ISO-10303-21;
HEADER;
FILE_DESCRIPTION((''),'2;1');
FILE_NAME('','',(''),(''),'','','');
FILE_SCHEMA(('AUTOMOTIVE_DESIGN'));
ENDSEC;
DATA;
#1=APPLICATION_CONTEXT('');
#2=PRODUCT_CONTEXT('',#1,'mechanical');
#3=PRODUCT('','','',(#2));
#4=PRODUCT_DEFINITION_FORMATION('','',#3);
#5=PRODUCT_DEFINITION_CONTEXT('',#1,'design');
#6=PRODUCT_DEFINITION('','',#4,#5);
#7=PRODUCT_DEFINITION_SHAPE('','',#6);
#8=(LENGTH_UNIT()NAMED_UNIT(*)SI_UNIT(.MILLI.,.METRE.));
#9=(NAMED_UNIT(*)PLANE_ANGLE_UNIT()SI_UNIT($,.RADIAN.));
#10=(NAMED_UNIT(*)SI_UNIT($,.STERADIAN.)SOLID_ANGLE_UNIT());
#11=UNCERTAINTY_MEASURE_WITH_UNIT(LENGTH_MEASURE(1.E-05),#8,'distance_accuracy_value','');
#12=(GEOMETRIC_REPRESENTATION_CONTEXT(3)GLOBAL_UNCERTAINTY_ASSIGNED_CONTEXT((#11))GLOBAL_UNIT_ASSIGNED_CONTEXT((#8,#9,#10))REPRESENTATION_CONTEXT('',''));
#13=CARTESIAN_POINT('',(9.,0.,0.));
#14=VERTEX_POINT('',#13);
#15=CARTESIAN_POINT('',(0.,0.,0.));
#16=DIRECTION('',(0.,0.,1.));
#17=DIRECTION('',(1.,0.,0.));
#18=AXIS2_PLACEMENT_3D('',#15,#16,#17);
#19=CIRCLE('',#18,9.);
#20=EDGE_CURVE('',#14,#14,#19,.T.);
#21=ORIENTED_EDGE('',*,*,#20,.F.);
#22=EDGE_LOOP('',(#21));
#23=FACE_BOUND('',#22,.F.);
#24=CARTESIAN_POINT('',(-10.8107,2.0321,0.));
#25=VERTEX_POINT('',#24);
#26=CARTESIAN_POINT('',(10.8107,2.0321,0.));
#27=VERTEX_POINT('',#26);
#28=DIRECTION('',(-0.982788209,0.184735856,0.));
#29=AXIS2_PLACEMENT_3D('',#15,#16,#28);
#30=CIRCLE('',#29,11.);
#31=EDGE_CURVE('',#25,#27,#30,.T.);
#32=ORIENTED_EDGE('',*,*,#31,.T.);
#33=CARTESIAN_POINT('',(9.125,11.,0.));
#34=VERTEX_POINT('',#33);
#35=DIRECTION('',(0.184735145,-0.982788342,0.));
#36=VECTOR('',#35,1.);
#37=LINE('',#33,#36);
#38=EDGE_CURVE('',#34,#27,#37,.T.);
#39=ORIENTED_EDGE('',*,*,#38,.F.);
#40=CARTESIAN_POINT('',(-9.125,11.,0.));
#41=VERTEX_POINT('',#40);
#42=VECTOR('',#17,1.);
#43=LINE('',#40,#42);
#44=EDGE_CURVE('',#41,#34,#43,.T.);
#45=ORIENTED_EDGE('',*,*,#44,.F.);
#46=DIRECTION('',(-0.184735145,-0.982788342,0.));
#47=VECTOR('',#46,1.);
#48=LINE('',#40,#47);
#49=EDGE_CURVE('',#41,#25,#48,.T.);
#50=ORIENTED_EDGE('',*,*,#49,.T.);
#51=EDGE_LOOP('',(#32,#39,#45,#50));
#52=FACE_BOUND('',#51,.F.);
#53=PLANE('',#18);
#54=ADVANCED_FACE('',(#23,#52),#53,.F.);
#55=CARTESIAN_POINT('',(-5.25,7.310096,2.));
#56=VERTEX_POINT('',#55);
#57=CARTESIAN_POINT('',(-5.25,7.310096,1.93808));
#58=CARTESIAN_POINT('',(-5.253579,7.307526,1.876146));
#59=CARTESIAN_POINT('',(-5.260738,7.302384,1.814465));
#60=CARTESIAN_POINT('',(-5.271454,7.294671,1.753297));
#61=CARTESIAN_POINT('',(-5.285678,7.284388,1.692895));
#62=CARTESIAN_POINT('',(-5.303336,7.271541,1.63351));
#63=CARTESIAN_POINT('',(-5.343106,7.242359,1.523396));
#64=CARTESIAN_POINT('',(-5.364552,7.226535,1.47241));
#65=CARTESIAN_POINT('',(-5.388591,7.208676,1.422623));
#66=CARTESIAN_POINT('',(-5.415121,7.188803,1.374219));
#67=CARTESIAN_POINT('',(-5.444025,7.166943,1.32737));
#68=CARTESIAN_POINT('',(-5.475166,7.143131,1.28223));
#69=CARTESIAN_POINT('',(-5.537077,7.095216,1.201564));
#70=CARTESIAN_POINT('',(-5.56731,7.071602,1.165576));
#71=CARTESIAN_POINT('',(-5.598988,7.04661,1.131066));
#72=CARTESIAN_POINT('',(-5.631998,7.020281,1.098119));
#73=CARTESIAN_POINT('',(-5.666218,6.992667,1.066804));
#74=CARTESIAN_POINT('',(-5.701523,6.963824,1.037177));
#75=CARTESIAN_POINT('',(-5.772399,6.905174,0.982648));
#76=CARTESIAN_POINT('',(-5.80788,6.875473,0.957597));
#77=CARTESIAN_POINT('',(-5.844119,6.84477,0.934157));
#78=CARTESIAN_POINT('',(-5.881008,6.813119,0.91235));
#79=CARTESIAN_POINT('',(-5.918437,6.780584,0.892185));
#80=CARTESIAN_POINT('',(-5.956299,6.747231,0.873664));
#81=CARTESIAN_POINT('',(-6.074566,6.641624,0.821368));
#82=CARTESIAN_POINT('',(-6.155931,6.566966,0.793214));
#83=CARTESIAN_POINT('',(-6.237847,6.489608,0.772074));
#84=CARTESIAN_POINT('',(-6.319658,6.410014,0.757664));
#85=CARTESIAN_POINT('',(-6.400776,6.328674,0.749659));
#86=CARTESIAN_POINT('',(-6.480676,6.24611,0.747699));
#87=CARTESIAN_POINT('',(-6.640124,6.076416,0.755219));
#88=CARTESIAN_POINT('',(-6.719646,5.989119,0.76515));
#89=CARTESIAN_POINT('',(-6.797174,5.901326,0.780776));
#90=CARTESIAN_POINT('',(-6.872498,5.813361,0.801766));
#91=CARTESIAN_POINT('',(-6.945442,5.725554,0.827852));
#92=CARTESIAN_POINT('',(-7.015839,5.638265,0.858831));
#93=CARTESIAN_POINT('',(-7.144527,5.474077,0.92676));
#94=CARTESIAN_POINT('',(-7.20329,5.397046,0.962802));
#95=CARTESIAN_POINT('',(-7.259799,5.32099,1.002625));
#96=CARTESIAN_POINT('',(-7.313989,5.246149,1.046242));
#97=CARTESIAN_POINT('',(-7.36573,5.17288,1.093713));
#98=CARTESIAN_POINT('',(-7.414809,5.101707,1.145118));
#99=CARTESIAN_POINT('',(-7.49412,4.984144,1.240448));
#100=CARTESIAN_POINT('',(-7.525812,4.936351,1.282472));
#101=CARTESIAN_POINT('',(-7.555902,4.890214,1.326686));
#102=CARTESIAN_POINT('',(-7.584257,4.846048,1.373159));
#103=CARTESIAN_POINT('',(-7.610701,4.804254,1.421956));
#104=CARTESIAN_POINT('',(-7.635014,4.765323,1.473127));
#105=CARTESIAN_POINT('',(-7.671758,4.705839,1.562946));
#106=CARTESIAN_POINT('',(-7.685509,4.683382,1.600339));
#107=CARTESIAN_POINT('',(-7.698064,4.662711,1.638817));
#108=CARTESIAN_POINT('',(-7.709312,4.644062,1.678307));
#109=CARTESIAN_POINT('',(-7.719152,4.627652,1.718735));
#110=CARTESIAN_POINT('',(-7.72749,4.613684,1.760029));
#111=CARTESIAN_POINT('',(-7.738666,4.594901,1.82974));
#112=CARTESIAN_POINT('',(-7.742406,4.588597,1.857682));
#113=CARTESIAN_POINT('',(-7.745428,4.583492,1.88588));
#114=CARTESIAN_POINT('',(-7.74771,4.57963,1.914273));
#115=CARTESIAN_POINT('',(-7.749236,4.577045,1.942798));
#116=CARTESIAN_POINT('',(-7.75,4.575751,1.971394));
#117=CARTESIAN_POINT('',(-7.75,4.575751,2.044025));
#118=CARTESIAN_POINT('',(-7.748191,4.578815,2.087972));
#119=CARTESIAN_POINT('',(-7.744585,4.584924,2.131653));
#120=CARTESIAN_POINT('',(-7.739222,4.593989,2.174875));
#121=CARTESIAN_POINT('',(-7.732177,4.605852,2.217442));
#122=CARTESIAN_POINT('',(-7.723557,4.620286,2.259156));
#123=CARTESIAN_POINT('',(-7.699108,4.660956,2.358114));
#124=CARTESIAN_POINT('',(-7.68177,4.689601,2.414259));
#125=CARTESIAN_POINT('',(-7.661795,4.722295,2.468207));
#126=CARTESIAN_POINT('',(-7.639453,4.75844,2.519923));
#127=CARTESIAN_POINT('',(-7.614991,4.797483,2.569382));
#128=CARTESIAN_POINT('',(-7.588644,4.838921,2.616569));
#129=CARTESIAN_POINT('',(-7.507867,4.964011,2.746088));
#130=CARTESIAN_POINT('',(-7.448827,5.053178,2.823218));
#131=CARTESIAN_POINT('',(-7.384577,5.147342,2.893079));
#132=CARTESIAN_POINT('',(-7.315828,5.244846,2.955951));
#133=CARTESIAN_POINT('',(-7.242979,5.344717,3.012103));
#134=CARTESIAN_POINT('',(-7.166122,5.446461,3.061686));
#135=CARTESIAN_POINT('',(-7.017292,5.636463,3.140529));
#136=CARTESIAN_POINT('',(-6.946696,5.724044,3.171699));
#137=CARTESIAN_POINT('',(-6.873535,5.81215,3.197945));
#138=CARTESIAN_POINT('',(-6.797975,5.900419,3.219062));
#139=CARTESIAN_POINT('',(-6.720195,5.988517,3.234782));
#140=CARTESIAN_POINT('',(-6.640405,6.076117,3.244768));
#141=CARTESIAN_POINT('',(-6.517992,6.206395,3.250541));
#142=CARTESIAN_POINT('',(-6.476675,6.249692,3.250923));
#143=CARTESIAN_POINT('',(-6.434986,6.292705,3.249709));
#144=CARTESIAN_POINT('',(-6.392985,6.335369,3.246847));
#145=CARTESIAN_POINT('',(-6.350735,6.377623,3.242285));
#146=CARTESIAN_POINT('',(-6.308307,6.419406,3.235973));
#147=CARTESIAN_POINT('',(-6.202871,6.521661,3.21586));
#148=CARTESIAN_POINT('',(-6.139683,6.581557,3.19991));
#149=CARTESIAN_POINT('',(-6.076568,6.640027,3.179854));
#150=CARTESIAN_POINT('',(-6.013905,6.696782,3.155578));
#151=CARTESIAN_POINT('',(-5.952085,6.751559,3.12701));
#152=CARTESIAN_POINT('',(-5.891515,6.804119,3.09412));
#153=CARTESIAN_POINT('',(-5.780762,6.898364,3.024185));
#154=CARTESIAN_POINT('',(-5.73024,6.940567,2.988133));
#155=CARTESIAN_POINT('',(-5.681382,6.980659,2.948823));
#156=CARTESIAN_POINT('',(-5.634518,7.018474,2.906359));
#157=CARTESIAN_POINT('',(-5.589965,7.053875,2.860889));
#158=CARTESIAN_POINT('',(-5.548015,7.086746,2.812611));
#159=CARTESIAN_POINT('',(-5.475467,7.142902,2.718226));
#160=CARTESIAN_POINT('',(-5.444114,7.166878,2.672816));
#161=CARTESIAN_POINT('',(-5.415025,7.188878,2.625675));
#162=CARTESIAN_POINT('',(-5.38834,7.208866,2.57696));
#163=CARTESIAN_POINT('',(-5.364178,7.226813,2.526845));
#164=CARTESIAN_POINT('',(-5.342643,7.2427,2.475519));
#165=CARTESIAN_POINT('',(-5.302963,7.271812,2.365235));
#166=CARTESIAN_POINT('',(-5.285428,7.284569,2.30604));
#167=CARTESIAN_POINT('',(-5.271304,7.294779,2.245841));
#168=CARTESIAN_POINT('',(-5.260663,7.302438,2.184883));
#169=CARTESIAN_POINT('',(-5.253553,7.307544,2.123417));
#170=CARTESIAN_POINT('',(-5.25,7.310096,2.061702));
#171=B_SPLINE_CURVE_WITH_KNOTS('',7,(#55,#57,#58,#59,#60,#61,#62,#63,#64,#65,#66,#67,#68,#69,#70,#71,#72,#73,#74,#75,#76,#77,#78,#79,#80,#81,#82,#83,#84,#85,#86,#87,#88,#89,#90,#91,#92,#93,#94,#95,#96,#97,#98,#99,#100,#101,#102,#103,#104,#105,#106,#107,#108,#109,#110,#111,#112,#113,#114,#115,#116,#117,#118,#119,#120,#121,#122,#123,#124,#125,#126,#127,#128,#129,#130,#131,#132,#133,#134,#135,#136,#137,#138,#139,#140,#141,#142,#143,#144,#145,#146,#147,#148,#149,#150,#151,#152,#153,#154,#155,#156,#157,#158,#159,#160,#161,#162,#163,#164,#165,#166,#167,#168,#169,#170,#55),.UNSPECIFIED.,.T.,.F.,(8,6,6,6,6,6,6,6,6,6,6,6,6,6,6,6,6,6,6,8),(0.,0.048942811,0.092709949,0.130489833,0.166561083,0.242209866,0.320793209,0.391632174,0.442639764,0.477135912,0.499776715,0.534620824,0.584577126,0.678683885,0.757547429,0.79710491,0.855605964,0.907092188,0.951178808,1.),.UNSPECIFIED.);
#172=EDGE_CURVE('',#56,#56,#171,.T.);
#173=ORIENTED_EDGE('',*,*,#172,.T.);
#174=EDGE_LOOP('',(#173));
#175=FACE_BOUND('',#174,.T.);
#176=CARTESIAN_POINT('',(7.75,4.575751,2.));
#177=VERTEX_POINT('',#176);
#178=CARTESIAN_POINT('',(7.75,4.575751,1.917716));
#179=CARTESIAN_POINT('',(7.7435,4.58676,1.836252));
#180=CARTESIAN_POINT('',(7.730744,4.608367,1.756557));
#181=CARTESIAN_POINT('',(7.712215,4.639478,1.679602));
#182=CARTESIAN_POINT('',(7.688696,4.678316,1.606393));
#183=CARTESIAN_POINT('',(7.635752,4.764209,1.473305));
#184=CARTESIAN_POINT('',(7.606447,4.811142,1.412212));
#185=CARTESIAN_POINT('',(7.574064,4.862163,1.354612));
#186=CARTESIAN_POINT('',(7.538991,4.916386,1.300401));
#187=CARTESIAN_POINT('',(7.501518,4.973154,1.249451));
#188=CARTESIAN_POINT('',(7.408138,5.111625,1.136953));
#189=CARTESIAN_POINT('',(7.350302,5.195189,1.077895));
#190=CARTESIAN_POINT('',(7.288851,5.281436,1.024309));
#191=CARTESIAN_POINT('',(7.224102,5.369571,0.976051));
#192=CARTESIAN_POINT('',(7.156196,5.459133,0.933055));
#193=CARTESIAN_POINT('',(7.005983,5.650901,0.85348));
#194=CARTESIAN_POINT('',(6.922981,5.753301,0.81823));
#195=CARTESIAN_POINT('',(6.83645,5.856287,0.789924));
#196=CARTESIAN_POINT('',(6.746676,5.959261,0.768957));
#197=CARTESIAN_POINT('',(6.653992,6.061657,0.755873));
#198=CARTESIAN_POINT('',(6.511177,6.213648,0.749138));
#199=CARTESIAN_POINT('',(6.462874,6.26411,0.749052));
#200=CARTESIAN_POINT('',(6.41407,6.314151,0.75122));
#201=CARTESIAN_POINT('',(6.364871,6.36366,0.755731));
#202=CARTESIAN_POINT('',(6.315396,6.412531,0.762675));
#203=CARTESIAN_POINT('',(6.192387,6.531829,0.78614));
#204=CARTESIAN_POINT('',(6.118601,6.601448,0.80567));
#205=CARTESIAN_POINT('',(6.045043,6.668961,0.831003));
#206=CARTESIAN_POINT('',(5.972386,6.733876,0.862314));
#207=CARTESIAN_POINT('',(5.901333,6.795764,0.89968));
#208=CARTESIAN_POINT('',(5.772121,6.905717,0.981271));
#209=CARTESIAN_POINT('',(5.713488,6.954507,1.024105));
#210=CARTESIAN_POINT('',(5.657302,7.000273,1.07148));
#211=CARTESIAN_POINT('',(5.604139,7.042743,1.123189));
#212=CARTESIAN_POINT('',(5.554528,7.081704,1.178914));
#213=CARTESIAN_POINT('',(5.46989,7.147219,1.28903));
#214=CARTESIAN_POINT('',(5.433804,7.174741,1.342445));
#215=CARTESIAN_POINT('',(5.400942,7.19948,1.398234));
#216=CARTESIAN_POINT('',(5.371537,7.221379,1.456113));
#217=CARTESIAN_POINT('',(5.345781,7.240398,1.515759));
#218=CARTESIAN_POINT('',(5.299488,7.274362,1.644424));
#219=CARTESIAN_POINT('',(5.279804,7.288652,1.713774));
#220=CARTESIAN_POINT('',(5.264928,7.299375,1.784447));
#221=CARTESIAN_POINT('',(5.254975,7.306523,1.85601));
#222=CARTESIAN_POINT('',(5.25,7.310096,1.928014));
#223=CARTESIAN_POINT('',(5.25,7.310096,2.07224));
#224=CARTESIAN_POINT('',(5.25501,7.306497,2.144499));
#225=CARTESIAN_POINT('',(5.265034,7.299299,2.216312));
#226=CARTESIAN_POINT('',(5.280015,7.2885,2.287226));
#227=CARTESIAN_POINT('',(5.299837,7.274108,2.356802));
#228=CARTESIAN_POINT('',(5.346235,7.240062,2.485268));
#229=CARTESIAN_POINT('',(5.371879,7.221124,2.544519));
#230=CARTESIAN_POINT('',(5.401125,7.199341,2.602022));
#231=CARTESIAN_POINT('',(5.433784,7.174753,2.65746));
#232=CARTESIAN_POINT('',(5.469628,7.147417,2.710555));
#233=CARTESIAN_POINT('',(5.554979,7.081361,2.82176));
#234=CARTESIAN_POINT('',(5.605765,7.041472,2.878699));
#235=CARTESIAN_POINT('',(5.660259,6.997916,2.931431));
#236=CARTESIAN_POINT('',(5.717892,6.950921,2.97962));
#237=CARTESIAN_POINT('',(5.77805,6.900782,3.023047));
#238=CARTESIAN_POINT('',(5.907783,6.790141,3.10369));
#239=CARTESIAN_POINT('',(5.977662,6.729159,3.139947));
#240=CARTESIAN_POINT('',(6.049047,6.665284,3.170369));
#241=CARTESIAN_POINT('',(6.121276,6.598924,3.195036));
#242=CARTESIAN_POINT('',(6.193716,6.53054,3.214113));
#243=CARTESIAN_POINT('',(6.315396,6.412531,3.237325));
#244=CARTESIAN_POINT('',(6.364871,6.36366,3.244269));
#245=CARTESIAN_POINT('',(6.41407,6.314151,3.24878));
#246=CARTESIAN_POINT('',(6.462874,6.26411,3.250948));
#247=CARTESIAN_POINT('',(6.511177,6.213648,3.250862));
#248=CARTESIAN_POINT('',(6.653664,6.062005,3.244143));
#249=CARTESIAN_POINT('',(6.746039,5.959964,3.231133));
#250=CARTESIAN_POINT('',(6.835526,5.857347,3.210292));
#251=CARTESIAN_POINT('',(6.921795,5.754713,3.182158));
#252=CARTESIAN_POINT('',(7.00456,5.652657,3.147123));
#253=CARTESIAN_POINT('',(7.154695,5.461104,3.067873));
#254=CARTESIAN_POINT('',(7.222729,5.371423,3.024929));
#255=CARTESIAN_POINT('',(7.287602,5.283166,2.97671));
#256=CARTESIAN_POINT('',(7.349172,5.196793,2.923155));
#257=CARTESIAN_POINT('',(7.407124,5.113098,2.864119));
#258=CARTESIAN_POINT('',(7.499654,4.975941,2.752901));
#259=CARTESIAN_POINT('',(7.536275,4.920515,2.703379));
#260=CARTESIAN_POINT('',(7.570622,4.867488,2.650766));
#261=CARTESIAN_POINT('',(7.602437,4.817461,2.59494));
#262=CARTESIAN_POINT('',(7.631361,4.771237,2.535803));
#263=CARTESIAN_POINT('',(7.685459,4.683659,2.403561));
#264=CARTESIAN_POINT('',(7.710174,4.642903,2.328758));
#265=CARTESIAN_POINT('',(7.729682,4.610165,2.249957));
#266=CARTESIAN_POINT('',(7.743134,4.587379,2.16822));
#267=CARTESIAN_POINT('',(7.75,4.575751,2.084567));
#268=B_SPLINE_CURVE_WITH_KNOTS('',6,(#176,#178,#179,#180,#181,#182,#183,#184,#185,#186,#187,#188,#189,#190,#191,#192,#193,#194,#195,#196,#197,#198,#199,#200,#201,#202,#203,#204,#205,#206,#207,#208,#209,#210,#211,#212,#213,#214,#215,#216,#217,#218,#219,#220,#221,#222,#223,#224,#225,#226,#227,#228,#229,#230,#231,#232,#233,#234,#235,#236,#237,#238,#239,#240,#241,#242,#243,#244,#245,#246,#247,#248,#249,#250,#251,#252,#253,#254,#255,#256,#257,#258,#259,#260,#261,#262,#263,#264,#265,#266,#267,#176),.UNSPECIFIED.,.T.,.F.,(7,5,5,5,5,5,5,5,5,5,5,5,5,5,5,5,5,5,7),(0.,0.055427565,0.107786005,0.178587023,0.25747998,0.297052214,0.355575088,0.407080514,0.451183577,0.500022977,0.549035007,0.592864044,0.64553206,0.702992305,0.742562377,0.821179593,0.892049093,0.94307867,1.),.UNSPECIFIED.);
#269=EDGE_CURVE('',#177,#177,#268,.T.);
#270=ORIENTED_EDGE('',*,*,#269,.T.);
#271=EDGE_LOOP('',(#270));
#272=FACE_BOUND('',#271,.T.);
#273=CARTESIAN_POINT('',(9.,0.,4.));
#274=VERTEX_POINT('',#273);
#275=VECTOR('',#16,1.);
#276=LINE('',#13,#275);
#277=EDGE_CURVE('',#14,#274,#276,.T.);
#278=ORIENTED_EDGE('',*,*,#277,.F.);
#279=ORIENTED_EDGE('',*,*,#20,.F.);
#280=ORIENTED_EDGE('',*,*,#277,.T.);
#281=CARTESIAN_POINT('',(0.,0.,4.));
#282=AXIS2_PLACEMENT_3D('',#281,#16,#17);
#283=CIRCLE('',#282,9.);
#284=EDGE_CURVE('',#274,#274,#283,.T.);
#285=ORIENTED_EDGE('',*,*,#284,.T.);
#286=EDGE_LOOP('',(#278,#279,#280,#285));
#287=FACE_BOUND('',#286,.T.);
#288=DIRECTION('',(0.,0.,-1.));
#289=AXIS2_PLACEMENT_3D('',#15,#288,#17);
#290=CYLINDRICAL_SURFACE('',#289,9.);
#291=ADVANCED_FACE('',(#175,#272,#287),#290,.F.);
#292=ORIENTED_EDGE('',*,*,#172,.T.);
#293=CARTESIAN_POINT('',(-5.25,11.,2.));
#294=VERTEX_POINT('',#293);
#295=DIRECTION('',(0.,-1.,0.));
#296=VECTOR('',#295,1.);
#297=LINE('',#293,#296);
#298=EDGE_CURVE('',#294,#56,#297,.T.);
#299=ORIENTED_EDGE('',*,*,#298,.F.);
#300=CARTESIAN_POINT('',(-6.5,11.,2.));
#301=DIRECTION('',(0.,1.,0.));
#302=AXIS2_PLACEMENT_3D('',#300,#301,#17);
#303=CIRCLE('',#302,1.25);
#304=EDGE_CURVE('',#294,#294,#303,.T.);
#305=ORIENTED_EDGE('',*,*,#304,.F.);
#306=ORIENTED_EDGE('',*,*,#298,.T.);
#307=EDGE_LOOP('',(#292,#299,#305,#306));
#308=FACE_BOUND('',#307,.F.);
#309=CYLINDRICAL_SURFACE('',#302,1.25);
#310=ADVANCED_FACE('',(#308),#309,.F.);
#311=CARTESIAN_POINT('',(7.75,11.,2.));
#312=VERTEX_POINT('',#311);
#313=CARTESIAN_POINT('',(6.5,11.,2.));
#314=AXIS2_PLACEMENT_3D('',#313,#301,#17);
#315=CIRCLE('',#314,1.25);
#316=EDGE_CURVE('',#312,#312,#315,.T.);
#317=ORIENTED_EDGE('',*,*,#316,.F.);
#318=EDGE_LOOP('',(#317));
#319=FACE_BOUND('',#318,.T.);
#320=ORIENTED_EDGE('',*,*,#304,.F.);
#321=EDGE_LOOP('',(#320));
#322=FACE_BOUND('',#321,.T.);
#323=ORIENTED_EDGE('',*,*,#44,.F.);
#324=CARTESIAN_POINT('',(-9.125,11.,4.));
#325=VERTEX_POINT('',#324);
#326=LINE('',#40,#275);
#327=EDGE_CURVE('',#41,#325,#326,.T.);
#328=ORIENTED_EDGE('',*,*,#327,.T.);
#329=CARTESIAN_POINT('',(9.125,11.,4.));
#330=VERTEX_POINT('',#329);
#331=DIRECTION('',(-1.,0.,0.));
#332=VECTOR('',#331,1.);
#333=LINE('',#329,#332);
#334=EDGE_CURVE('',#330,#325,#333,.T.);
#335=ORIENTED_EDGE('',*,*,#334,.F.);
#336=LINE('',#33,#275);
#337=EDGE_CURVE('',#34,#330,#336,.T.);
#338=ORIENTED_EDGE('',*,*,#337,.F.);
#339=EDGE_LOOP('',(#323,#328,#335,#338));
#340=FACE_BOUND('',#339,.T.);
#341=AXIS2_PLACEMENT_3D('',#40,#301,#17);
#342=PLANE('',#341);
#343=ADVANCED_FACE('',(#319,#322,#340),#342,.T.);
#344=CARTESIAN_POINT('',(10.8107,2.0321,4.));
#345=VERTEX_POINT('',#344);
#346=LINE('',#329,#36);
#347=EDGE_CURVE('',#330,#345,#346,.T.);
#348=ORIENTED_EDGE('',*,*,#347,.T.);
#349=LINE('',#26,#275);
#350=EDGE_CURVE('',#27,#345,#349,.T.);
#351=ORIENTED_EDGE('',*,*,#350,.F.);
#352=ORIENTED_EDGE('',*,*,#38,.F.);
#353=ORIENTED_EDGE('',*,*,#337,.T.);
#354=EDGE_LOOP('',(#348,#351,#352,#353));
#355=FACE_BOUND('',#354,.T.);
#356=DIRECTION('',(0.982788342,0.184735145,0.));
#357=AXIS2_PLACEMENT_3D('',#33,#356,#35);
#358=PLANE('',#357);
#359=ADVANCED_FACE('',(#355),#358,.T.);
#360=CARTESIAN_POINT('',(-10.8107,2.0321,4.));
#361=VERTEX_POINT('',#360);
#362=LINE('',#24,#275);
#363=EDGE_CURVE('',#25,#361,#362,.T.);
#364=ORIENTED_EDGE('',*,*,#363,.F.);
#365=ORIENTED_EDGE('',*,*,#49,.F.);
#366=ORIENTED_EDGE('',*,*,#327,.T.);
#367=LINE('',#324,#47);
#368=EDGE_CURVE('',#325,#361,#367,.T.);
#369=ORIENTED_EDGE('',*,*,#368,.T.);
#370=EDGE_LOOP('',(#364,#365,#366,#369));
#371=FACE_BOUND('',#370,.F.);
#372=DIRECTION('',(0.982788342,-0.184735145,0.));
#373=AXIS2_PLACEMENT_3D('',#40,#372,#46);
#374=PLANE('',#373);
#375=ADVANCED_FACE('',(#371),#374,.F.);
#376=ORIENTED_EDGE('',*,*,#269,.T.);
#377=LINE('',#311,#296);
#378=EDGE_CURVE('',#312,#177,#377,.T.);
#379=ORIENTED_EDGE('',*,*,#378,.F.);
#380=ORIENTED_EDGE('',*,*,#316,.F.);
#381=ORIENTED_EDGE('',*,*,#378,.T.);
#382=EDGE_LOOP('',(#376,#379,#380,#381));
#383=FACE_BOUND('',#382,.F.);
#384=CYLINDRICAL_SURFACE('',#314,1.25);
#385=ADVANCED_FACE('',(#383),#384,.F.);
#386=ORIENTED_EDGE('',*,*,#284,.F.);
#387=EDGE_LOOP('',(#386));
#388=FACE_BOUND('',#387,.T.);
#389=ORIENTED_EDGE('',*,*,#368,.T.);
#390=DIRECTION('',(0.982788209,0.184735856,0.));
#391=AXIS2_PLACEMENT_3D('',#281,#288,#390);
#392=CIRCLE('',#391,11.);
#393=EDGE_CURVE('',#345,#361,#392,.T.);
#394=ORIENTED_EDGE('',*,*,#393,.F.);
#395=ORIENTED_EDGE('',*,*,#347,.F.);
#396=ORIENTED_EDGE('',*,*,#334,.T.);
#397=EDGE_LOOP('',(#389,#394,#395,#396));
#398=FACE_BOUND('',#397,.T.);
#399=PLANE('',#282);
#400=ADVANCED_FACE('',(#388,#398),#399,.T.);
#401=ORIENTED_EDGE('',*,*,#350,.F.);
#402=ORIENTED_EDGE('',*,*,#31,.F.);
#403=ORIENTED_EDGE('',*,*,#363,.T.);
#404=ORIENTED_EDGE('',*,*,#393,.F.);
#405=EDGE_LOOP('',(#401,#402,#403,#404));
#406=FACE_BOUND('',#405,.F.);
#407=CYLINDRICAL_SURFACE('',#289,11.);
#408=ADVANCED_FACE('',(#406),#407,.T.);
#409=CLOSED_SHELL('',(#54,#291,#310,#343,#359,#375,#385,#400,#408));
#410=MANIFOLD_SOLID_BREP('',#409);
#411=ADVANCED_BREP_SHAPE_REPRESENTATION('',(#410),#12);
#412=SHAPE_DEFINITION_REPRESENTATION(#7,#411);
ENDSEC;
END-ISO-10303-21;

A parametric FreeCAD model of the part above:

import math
import FreeCAD as App
import Part
import Sketcher

V = App.Vector

doc = App.newDocument("Part")
body = doc.addObject("PartDesign::Body", "Body")

# Sketch on XY plane
sketch1 = body.newObject("Sketcher::SketchObject", "Sketch")
sketch1.AttachmentSupport = (doc.getObject("XY_Plane"), [""])
sketch1.MapMode = "FlatFace"
sketch1.addGeometry([
    Part.ArcOfCircle(Part.Circle(V(0, 0, 0), V(0, 0, 1), 11), math.radians(169), math.radians(371)),  # 0
    Part.LineSegment(V(11, 2, 0), V(9, 11, 0)),  # 1
    Part.LineSegment(V(9, 11, 0), V(-9, 11, 0)),  # 2
    Part.LineSegment(V(-9, 11, 0), V(-11, 2, 0)),  # 3
    Part.Circle(V(0, 0, 0), V(0, 0, 1), 9),  # 4
], False)
sketch1.addConstraint([
    Sketcher.Constraint("Tangent", 0, 2, 1, 1),
    Sketcher.Constraint("Coincident", 1, 2, 2, 1),
    Sketcher.Constraint("Coincident", 2, 2, 3, 1),
    Sketcher.Constraint("Tangent", 3, 2, 0, 1),
    Sketcher.Constraint("Horizontal", 2),
    Sketcher.Constraint("Coincident", 0, 3, -1, 1),
    Sketcher.Constraint("Coincident", 4, 3, -1, 1),
    Sketcher.Constraint("Horizontal", 0, 2, 3, 2),
    Sketcher.Constraint("Diameter", 4, 18.0),
    Sketcher.Constraint("Radius", 0, 11.0),
    Sketcher.Constraint("DistanceX", 2, 2, 2, 1, 18.25),
    Sketcher.Constraint("DistanceY", -1, 1, 1, 2, 11.0),
])
pad1 = body.newObject("PartDesign::Pad", "Pad")
pad1.Profile = sketch1
pad1.Length = 4

# Sketch on XZ plane
sketch2 = body.newObject("Sketcher::SketchObject", "Sketch001")
sketch2.AttachmentSupport = (doc.getObject("XZ_Plane"), [""])
sketch2.MapMode = "FlatFace"
sketch2.AttachmentOffset = App.Placement(V(0, 0, -11), App.Rotation())
sketch2.addGeometry([
    Part.Circle(V(-6.5, 2, 0), V(0, 0, 1), 1.2),
    Part.Circle(V(6.5, 2, 0), V(0, 0, 1), 1.2),
], False)
sketch2.addConstraint([
    Sketcher.Constraint("Equal", 0, 1),
    Sketcher.Constraint("Symmetric", 0, 3, 1, 3, -2),
    Sketcher.Constraint("Diameter", 0, 2.5),
    Sketcher.Constraint("DistanceX", 0, 3, 1, 3, 13.0),
    Sketcher.Constraint("DistanceY", -1, 1, 0, 3, 2.0),
])
pocket1 = body.newObject("PartDesign::Pocket", "Pocket")
pocket1.Profile = sketch2
pocket1.Length = 11
pocket1.Reversed = True

doc.recompute()
